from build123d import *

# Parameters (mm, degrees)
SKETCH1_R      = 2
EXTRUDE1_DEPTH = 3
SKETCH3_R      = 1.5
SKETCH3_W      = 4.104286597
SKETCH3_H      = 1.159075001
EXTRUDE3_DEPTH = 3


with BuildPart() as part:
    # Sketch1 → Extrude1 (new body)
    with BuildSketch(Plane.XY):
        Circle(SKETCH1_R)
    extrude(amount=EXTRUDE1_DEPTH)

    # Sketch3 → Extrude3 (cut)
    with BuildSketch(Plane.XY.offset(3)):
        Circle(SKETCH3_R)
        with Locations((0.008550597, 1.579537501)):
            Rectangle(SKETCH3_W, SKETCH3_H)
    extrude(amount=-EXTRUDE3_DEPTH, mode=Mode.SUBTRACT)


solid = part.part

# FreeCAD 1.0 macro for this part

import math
import FreeCAD as App
import Part
import Sketcher
from FreeCAD import Vector
Q = App.Units.Quantity

doc = App.newDocument("Part")
body = doc.addObject("PartDesign::Body", "Body")

sketch1 = doc.addObject("Sketcher::SketchObject", "Sketch")
body.addObject(sketch1)
sketch1.AttachmentSupport = (doc.XY_Plane, [""])
sketch1.MapMode = "FlatFace"
sketch1.addGeometry(Part.Circle(Vector(0, 0, 0), Vector(0, 0, 1), 2), False)
sketch1.addConstraint(Sketcher.Constraint("Coincident", 0, 3, -1, 1))
sketch1.addConstraint(Sketcher.Constraint("Diameter", 0, Q("4 mm")))
pad1 = doc.addObject("PartDesign::Pad", "Pad")
body.addObject(pad1)
pad1.Profile = sketch1
pad1.Length = 3

sketch2 = doc.addObject("Sketcher::SketchObject", "Sketch001")
body.addObject(sketch2)
sketch2.AttachmentSupport = (doc.XY_Plane, [""])
sketch2.MapMode = "FlatFace"
sketch2.AttachmentOffset = App.Placement(Vector(0, 0, 3), App.Rotation())
sketch2.addGeometry(Part.ArcOfCircle(Part.Circle(Vector(0, 0, 0), Vector(0, 0, 1), 1.5), math.radians(138), math.radians(402)), False)
sketch2.addGeometry(Part.LineSegment(Vector(1.1, 1, 0), Vector(2.1, 1, 0)), False)
sketch2.addGeometry(Part.LineSegment(Vector(2.1, 1, 0), Vector(2.1, 2.2, 0)), False)
sketch2.addGeometry(Part.LineSegment(Vector(2.1, 2.2, 0), Vector(-2, 2.2, 0)), False)
sketch2.addGeometry(Part.LineSegment(Vector(-2, 2.2, 0), Vector(-2, 1, 0)), False)
sketch2.addGeometry(Part.LineSegment(Vector(-2, 1, 0), Vector(-1.1, 1, 0)), False)
sketch2.addConstraint(Sketcher.Constraint("Coincident", 0, 2, 1, 1))
sketch2.addConstraint(Sketcher.Constraint("Coincident", 1, 2, 2, 1))
sketch2.addConstraint(Sketcher.Constraint("Coincident", 2, 2, 3, 1))
sketch2.addConstraint(Sketcher.Constraint("Coincident", 3, 2, 4, 1))
sketch2.addConstraint(Sketcher.Constraint("Coincident", 4, 2, 5, 1))
sketch2.addConstraint(Sketcher.Constraint("Coincident", 5, 2, 0, 1))
sketch2.addConstraint(Sketcher.Constraint("Horizontal", 1))
sketch2.addConstraint(Sketcher.Constraint("Vertical", 2))
sketch2.addConstraint(Sketcher.Constraint("Horizontal", 3))
sketch2.addConstraint(Sketcher.Constraint("Vertical", 4))
sketch2.addConstraint(Sketcher.Constraint("Horizontal", 5))
sketch2.addConstraint(Sketcher.Constraint("Coincident", 0, 3, -1, 1))
sketch2.addConstraint(Sketcher.Constraint("Horizontal", 1, 2, 4, 2))
sketch2.addConstraint(Sketcher.Constraint("Radius", 0, Q("1.5 mm")))
sketch2.addConstraint(Sketcher.Constraint("DistanceY", -1, 1, 0, 2, Q("1 mm")))
sketch2.addConstraint(Sketcher.Constraint("DistanceX", 1, 1, 1, 2, Q("0.94266 mm")))
sketch2.addConstraint(Sketcher.Constraint("DistanceX", 5, 1, 5, 2, Q("0.925559 mm")))
sketch2.addConstraint(Sketcher.Constraint("DistanceY", 2, 1, 2, 2, Q("1.159075 mm")))
pocket1 = doc.addObject("PartDesign::Pocket", "Pocket")
body.addObject(pocket1)
pocket1.Profile = sketch2
pocket1.Length = 3

doc.recompute()
